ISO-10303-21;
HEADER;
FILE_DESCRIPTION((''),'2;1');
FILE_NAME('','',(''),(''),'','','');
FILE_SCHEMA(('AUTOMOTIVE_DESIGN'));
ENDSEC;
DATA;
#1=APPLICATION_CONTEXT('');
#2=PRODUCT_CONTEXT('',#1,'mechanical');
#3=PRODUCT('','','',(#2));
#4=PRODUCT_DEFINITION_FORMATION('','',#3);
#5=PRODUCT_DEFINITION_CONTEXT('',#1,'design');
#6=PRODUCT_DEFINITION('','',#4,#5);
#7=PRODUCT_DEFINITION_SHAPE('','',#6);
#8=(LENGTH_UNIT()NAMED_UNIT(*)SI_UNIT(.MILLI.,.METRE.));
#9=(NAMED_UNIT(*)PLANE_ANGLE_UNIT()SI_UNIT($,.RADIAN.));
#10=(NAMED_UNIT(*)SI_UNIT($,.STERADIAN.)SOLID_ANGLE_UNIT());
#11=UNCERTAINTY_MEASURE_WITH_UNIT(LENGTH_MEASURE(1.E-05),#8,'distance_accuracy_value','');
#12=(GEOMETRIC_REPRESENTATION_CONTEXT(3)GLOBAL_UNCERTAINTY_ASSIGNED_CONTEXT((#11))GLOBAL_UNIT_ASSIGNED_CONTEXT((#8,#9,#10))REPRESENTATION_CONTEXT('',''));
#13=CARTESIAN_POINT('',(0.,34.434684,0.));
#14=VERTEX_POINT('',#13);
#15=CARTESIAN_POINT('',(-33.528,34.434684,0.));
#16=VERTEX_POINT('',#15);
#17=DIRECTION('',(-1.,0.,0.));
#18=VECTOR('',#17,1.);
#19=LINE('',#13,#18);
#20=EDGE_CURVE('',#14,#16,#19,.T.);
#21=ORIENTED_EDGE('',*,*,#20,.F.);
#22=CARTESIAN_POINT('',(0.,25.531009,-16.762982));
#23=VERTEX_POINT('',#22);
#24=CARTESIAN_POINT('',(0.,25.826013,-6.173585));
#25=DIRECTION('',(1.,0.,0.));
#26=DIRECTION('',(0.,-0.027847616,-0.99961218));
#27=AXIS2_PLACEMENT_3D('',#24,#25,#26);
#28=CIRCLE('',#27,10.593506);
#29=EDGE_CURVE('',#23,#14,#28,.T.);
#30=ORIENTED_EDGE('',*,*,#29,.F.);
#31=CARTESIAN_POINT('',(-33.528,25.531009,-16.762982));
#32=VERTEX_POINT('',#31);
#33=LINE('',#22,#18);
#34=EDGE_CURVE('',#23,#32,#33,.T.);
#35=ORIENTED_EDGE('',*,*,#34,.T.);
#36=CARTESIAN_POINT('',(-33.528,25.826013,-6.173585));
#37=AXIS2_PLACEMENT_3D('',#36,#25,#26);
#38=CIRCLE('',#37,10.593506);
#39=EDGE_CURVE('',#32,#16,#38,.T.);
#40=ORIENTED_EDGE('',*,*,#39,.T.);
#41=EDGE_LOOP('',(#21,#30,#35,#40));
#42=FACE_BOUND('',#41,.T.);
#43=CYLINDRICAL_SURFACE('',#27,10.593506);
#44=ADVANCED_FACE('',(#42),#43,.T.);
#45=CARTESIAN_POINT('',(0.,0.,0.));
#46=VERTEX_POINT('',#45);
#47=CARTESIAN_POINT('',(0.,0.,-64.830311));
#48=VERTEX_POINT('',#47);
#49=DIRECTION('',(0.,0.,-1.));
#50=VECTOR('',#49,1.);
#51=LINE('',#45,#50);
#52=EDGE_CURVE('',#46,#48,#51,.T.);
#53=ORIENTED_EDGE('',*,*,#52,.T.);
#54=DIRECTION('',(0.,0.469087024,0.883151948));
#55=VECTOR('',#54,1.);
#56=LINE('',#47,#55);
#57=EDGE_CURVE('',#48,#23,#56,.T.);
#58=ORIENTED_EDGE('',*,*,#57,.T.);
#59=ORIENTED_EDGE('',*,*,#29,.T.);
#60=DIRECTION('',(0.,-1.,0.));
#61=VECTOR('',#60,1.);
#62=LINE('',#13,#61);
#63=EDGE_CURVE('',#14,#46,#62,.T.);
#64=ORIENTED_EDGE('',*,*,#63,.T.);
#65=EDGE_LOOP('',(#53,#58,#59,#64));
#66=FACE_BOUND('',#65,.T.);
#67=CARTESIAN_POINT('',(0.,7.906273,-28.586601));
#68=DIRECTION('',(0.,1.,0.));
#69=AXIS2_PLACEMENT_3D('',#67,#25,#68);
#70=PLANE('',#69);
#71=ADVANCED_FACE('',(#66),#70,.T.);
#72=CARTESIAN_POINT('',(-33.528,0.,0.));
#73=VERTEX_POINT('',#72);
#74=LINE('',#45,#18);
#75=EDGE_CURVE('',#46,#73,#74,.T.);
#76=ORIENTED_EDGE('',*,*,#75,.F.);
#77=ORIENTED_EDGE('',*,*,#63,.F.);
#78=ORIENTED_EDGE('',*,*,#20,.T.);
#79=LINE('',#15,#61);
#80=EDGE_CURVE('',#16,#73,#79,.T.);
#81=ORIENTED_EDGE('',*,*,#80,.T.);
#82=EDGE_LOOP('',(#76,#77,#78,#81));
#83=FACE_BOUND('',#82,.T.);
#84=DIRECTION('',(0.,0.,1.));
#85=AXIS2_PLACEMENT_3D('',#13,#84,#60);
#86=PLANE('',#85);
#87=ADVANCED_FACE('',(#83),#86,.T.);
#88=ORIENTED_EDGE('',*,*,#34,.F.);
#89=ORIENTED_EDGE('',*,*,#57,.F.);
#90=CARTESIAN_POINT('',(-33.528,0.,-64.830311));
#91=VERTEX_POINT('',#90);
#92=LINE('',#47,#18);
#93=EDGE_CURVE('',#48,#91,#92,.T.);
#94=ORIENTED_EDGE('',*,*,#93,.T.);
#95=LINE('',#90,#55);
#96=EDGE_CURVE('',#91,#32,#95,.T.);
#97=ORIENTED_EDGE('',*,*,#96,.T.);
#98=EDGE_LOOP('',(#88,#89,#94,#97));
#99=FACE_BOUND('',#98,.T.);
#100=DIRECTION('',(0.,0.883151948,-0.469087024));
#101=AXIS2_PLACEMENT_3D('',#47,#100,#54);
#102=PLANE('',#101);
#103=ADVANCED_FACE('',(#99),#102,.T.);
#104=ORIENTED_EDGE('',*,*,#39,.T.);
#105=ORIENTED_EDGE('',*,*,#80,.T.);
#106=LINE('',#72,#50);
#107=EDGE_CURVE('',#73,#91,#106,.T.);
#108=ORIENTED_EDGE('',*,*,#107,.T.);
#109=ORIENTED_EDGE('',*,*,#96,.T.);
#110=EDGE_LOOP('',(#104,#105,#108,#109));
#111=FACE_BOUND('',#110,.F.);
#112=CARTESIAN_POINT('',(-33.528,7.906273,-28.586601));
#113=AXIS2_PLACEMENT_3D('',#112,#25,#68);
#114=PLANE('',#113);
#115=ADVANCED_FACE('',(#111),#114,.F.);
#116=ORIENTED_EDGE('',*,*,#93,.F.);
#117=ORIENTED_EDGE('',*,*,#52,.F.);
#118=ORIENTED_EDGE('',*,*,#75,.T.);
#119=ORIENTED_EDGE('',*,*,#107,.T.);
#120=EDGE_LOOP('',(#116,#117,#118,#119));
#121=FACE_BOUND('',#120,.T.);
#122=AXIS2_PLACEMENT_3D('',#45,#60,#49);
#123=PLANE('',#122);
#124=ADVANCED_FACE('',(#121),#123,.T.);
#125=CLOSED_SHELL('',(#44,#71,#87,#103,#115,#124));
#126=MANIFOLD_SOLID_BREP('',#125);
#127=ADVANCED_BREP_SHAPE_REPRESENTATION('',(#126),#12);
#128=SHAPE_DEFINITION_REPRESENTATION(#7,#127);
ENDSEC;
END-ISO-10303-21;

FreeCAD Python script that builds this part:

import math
import FreeCAD as App
import Part
import Sketcher

V = App.Vector
Q = App.Units.Quantity

doc = App.newDocument("Part")
body = doc.addObject("PartDesign::Body", "Body")

# Sketch on YZ plane
sketch1 = body.newObject("Sketcher::SketchObject", "Sketch")
sketch1.AttachmentSupport = (doc.getObject("YZ_Plane"), [""])
sketch1.MapMode = "FlatFace"
sketch1.addGeometry([
    Part.LineSegment(V(0, 0, 0), V(0, -65, 0)),
    Part.LineSegment(V(0, -65, 0), V(26, -17, 0)),
    Part.ArcOfCircle(Part.Circle(V(26, -6, 0), V(0, 0, 1), 11), math.radians(-92), math.radians(36)),
    Part.LineSegment(V(34, 0, 0), V(0, 0, 0)),
], False)
sketch1.addConstraint([
    Sketcher.Constraint("Coincident", 0, 2, 1, 1),
    Sketcher.Constraint("Coincident", 1, 2, 2, 1),
    Sketcher.Constraint("Coincident", 2, 2, 3, 1),
    Sketcher.Constraint("Coincident", 3, 2, 0, 1),
    Sketcher.Constraint("Vertical", 0),
    Sketcher.Constraint("Horizontal", 3),
    Sketcher.Constraint("Coincident", 3, 2, -1, 1),
    Sketcher.Constraint("Radius", 2, Q("10.593506 mm")),
    Sketcher.Constraint("DistanceY", 0, 2, 0, 1, Q("64.830311 mm")),
    Sketcher.Constraint("Distance", 1, Q("54.42702 mm")),
    Sketcher.Constraint("DistanceX", 3, 2, 3, 1, Q("34.434684 mm")),
    Sketcher.Constraint("DistanceX", -1, 1, 1, 2, Q("25.531009 mm")),
])
pad1 = body.newObject("PartDesign::Pad", "Pad")
pad1.Profile = sketch1
pad1.Length = Q("1.32 in")
pad1.Reversed = True

doc.recompute()
